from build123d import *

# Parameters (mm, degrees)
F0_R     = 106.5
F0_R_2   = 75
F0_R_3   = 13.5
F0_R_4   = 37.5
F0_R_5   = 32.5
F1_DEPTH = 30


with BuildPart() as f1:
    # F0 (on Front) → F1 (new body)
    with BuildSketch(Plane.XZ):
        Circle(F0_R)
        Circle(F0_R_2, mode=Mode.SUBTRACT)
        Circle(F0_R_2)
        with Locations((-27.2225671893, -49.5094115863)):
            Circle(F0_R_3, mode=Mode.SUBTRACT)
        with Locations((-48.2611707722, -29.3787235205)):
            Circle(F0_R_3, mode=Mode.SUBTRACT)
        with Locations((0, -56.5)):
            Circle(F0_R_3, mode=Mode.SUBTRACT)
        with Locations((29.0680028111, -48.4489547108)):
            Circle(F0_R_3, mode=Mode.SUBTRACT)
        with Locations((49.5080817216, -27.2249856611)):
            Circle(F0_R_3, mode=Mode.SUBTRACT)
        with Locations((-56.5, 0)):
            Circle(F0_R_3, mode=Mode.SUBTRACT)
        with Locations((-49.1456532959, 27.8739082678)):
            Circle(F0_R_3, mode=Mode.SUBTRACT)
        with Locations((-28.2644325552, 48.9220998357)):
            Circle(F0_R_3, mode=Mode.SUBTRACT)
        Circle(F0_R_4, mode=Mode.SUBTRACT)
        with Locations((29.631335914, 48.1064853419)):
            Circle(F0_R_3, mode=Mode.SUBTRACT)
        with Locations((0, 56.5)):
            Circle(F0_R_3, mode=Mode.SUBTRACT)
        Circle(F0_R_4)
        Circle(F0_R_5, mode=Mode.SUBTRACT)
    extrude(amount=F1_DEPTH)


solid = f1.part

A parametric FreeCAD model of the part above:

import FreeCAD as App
import Part
import Sketcher
from FreeCAD import Vector

doc = App.newDocument("Part")
body = doc.addObject("PartDesign::Body", "Body")

sketch1 = body.newObject("Sketcher::SketchObject", "Sketch")
sketch1.AttachmentSupport = (doc.getObject("XZ_Plane"), [""])
sketch1.MapMode = "FlatFace"
sketch1.addGeometry([
    Part.Circle(Vector(0, 0, 0), Vector(0, 0, 1), 106),
    Part.Circle(Vector(-27, -50, 0), Vector(0, 0, 1), 14),
    Part.Circle(Vector(-48, -29, 0), Vector(0, 0, 1), 14),
    Part.Circle(Vector(0, -56, 0), Vector(0, 0, 1), 14),
    Part.Circle(Vector(29, -48, 0), Vector(0, 0, 1), 14),
    Part.Circle(Vector(50, -27, 0), Vector(0, 0, 1), 14),
    Part.Circle(Vector(-56, 0, 0), Vector(0, 0, 1), 14),
    Part.Circle(Vector(-49, 28, 0), Vector(0, 0, 1), 14),
    Part.Circle(Vector(-28, 49, 0), Vector(0, 0, 1), 14),
    Part.Circle(Vector(0, 0, 0), Vector(0, 0, 1), 32),
    Part.Circle(Vector(30, 48, 0), Vector(0, 0, 1), 14),
    Part.Circle(Vector(0, 56, 0), Vector(0, 0, 1), 14),
], False)
sketch1.addConstraint([
    Sketcher.Constraint("Coincident", 0, 3, -1, 1),
    Sketcher.Constraint("Coincident", 9, 3, -1, 1),
    Sketcher.Constraint("Equal", 1, 2),
    Sketcher.Constraint("Equal", 2, 3),
    Sketcher.Constraint("Equal", 3, 4),
    Sketcher.Constraint("Equal", 4, 5),
    Sketcher.Constraint("Equal", 5, 6),
    Sketcher.Constraint("Equal", 6, 7),
    Sketcher.Constraint("Equal", 7, 8),
    Sketcher.Constraint("Equal", 8, 10),
    Sketcher.Constraint("Equal", 10, 11),
    Sketcher.Constraint("Symmetric", 3, 3, 11, 3, -1, 1),
    Sketcher.Constraint("PointOnObject", 3, 3, -2),
    Sketcher.Constraint("PointOnObject", 6, 3, -1),
    Sketcher.Constraint("Diameter", 0, 213.0),
    Sketcher.Constraint("Diameter", 1, 27.0),
    Sketcher.Constraint("Diameter", 9, 65.0),
    Sketcher.Constraint("DistanceY", 3, 3, -1, 1, 56.5),
    Sketcher.Constraint("DistanceX", 6, 3, -1, 1, 56.5),
    Sketcher.Constraint("DistanceY", -1, 1, 8, 3, 48.9221),
    Sketcher.Constraint("DistanceY", 1, 3, -1, 1, 49.509412),
    Sketcher.Constraint("DistanceX", 2, 3, -1, 1, 48.261171),
    Sketcher.Constraint("DistanceX", -1, 1, 5, 3, 49.508082),
    Sketcher.Constraint("DistanceY", -1, 1, 7, 3, 27.873908),
    Sketcher.Constraint("DistanceY", 1, 3, 2, 3, 20.130688),
    Sketcher.Constraint("DistanceX", 1, 3, 4, 3, 56.29057),
    Sketcher.Constraint("DistanceY", 4, 3, 2, 3, 19.070231),
    Sketcher.Constraint("DistanceX", 4, 3, 5, 3, 20.440079),
    Sketcher.Constraint("DistanceY", 4, 3, 5, 3, 21.223969),
    Sketcher.Constraint("DistanceX", 7, 3, 8, 3, 20.881221),
    Sketcher.Constraint("DistanceX", 2, 3, 8, 3, 19.996738),
    Sketcher.Constraint("DistanceX", 8, 3, 10, 3, 57.895768),
    Sketcher.Constraint("DistanceY", 5, 3, 10, 3, 75.331471),
])
pad1 = body.newObject("PartDesign::Pad", "Pad")
pad1.Profile = sketch1
pad1.Length = 30

doc.recompute()
